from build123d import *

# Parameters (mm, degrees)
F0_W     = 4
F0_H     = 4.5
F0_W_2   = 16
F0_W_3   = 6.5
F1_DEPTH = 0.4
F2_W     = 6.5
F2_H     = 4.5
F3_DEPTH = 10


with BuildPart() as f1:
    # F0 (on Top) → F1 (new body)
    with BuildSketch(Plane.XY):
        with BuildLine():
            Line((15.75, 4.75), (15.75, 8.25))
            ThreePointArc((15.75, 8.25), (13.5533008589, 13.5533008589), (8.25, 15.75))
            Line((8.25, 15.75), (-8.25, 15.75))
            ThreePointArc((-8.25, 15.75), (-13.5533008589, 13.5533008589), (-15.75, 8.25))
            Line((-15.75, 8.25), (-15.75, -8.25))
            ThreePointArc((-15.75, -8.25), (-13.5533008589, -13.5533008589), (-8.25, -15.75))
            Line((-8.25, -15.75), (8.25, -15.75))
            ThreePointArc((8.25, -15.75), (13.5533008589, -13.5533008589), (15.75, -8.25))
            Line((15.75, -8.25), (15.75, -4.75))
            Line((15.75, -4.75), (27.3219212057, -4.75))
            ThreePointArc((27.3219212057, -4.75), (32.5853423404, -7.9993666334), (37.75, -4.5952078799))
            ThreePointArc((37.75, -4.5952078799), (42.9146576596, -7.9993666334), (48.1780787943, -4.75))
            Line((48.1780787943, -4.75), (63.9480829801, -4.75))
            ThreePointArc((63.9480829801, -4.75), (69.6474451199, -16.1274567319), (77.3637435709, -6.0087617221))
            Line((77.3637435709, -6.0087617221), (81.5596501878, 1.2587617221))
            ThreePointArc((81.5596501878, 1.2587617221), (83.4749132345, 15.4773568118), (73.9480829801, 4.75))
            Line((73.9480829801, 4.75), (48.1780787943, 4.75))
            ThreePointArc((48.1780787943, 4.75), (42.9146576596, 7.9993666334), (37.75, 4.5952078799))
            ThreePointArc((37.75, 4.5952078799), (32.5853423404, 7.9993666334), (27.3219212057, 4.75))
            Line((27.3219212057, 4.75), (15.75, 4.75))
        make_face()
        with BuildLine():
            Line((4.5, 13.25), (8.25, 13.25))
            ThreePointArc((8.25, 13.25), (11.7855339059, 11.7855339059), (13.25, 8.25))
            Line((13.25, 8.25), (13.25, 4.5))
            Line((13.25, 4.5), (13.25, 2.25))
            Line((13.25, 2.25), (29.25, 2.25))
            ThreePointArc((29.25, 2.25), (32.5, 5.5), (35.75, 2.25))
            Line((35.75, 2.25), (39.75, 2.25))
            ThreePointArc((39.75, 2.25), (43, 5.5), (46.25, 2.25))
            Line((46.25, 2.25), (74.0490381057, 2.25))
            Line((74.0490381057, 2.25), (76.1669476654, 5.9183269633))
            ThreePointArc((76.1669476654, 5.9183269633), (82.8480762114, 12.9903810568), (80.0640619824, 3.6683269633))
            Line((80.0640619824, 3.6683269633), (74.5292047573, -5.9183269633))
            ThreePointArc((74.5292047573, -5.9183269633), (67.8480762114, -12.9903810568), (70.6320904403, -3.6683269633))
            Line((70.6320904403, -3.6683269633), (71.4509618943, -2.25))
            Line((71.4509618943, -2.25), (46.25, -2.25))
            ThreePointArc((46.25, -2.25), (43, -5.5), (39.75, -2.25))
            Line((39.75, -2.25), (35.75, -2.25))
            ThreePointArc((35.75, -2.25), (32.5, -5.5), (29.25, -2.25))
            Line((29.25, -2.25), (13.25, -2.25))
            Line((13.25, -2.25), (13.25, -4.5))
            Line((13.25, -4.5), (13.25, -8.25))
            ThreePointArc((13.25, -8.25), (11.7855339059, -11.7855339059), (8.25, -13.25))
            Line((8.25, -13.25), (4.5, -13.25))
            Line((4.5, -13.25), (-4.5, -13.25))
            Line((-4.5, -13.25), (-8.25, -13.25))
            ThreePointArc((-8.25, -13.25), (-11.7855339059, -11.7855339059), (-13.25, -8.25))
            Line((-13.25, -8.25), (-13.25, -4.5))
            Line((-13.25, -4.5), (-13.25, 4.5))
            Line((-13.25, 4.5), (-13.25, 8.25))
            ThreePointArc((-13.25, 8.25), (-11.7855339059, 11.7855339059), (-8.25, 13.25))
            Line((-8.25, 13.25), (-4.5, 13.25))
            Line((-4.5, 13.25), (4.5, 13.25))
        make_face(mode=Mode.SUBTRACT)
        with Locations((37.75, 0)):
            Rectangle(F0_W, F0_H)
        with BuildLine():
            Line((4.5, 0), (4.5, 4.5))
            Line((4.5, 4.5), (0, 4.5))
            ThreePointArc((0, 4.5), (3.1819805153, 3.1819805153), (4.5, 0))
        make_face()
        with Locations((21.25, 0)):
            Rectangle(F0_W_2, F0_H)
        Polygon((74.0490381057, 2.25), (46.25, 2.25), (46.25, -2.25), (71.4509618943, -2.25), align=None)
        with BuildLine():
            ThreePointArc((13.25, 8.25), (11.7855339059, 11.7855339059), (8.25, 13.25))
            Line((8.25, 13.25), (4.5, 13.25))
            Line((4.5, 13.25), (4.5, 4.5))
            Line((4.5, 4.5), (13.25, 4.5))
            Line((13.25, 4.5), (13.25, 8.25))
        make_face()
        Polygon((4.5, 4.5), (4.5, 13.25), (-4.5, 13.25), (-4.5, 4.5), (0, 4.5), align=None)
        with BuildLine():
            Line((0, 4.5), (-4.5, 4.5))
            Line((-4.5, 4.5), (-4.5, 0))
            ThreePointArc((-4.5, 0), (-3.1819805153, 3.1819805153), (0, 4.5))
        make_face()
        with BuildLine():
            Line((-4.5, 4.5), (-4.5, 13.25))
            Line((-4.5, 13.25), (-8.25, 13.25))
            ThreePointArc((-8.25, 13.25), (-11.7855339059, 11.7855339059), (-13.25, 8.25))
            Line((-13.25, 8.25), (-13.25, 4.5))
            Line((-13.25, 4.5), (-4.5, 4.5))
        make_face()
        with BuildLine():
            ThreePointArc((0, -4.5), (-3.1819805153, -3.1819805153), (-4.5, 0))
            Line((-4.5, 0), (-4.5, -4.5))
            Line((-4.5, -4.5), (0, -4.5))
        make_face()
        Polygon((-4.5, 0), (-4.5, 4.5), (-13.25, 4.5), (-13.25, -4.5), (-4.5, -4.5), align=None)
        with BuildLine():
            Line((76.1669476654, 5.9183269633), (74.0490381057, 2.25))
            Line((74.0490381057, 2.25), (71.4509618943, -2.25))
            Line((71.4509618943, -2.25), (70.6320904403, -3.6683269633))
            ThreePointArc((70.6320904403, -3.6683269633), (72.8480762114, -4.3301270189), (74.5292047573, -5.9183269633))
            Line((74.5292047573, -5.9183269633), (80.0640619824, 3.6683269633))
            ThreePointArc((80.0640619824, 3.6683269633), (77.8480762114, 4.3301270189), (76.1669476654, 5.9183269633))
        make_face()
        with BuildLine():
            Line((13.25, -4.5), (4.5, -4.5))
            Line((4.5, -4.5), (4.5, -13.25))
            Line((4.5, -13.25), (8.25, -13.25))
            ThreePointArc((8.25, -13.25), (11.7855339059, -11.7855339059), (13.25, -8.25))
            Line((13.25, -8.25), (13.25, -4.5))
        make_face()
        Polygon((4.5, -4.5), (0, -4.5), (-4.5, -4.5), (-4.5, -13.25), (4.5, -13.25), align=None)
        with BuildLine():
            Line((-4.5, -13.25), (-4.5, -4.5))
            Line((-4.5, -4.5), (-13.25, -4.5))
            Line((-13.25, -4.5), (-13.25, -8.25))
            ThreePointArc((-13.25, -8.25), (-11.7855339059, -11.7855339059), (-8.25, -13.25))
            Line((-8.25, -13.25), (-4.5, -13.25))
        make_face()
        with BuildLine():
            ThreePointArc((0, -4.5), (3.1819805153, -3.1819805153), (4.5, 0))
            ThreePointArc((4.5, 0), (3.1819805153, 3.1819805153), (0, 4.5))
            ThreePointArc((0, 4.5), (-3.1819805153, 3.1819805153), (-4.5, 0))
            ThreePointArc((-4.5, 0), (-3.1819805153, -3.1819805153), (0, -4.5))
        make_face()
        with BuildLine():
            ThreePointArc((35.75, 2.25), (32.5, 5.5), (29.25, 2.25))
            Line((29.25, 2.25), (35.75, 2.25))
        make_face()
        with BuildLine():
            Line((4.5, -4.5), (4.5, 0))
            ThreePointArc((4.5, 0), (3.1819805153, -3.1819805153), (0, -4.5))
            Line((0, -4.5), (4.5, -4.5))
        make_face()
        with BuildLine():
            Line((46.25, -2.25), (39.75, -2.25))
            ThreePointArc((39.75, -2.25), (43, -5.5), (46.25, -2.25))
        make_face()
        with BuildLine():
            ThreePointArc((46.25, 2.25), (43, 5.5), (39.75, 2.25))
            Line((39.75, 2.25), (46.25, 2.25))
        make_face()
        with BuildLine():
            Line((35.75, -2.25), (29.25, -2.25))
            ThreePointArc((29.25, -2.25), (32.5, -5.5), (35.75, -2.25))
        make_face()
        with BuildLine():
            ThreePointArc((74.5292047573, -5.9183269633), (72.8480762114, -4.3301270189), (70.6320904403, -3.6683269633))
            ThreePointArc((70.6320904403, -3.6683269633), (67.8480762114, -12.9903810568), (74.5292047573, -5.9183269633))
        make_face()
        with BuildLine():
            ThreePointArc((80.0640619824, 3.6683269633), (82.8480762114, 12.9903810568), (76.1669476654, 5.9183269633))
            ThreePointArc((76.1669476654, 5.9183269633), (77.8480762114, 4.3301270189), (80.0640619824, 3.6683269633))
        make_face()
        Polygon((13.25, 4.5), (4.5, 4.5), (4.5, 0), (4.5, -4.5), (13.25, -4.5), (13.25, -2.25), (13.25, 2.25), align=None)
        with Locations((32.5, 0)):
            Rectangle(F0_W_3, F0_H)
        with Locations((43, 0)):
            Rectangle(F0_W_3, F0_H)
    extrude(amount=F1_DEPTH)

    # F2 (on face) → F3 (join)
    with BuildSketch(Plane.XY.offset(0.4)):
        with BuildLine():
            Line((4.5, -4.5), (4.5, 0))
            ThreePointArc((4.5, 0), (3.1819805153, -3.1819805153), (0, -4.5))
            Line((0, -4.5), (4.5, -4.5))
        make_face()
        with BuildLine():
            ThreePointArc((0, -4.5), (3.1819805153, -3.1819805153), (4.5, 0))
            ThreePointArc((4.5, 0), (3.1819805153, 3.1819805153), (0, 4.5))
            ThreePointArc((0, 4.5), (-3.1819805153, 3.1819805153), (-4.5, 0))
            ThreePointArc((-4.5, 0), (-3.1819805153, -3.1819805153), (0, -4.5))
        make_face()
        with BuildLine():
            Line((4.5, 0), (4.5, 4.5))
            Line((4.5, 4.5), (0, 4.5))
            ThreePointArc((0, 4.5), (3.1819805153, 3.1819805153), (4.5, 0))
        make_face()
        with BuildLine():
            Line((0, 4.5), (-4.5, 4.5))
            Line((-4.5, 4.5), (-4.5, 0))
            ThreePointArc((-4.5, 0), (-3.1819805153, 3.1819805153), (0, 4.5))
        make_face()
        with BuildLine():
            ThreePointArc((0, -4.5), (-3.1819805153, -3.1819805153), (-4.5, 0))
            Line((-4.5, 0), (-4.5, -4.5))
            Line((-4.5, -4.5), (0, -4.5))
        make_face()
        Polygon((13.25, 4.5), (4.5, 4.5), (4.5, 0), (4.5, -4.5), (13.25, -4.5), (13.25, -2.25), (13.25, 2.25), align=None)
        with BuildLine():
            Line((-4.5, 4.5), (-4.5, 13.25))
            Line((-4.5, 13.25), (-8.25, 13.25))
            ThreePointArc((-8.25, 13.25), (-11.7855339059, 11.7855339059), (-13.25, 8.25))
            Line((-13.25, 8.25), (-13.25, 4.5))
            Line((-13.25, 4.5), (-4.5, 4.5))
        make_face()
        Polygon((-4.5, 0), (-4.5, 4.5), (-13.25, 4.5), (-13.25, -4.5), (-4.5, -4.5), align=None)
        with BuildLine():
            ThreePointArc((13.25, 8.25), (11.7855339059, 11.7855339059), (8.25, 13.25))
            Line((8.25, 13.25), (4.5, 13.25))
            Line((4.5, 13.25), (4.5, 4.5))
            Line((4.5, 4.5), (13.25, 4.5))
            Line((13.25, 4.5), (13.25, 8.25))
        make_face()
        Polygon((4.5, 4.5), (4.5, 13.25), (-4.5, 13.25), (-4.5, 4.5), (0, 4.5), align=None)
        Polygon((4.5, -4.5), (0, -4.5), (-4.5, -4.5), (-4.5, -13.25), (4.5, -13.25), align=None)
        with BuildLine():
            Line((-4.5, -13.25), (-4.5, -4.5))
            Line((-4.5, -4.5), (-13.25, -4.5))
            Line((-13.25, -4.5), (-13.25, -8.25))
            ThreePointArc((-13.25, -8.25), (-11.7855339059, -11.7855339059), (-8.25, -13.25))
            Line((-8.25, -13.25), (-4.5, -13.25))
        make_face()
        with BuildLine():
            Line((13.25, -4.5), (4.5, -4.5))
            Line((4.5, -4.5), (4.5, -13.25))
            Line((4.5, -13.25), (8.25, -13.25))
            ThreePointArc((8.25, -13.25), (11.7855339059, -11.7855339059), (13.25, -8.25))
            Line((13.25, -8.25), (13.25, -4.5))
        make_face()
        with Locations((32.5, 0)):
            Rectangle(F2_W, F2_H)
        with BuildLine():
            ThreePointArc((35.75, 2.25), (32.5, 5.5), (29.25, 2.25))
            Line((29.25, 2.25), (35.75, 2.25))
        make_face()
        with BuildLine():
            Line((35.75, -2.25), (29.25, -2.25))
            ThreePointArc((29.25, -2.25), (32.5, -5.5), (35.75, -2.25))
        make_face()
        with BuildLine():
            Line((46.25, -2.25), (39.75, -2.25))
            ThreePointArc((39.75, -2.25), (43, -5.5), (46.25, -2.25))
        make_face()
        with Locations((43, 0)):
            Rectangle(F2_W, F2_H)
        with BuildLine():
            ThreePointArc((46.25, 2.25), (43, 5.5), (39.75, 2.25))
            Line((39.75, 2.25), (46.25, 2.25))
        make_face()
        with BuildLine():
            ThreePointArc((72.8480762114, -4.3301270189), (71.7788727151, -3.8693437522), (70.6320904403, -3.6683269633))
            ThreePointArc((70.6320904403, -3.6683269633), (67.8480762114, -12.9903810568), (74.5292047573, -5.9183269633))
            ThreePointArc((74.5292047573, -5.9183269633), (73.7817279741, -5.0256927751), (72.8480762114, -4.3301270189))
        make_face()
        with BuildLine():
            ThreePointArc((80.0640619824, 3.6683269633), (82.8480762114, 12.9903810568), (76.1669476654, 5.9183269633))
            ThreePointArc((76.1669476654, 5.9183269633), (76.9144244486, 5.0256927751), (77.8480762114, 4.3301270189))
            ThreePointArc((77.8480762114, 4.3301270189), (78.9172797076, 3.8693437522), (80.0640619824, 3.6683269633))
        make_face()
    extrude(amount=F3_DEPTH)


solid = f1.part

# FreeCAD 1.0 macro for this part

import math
import FreeCAD as App
import Part
import Sketcher

V = App.Vector
Q = App.Units.Quantity

doc = App.newDocument("Part")
body = doc.addObject("PartDesign::Body", "Body")

sketch1 = doc.addObject("Sketcher::SketchObject", "Sketch")
body.addObject(sketch1)
sketch1.AttachmentSupport = (doc.XY_Plane, [""])
sketch1.MapMode = "FlatFace"
sketch1.addGeometry([
    Part.LineSegment(V(15.75, 4.75, 0), V(15.75, 8.25, 0)),
    Part.ArcOfCircle(Part.Circle(V(8.25, 8.25, 0), V(0, 0, 1), 7.5), math.radians(0), math.radians(90)),
    Part.LineSegment(V(8.25, 15.75, 0), V(-8.25, 15.75, 0)),
    Part.ArcOfCircle(Part.Circle(V(-8.25, 8.25, 0), V(0, 0, 1), 7.5), math.radians(90), math.radians(180)),
    Part.LineSegment(V(-15.75, 8.25, 0), V(-15.75, -8.25, 0)),
    Part.ArcOfCircle(Part.Circle(V(-8.25, -8.25, 0), V(0, 0, 1), 7.5), math.radians(180), math.radians(270)),
    Part.LineSegment(V(-8.25, -15.75, 0), V(8.25, -15.75, 0)),
    Part.ArcOfCircle(Part.Circle(V(8.25, -8.25, 0), V(0, 0, 1), 7.5), math.radians(-90), math.radians(0)),
    Part.LineSegment(V(15.75, -8.25, 0), V(15.75, -4.75, 0)),
    Part.LineSegment(V(15.75, -4.75, 0), V(27.321921, -4.75, 0)),
    Part.ArcOfCircle(Part.Circle(V(32.5, -2.25, 0), V(0, 0, 1), 5.75), math.radians(-154.228538), math.radians(-24.070615)),
    Part.ArcOfCircle(Part.Circle(V(43, -2.25, 0), V(0, 0, 1), 5.75), math.radians(-155.929385), math.radians(-25.771462)),
    Part.LineSegment(V(48.178079, -4.75, 0), V(63.948083, -4.75, 0)),
    Part.ArcOfCircle(Part.Circle(V(70.348076, -8.660254, 0), V(0, 0, 1), 7.5), math.radians(148.575994), math.radians(380.70352)),
    Part.LineSegment(V(77.363744, -6.008762, 0), V(81.55965, 1.258762, 0)),
    Part.ArcOfCircle(Part.Circle(V(80.348076, 8.660254, 0), V(0, 0, 1), 7.5), math.radians(-80.70352), math.radians(211.424006)),
    Part.LineSegment(V(73.948083, 4.75, 0), V(48.178079, 4.75, 0)),
    Part.ArcOfCircle(Part.Circle(V(43, 2.25, 0), V(0, 0, 1), 5.75), math.radians(25.771462), math.radians(155.929385)),
    Part.ArcOfCircle(Part.Circle(V(32.5, 2.25, 0), V(0, 0, 1), 5.75), math.radians(24.070615), math.radians(154.228538)),
    Part.LineSegment(V(27.321921, 4.75, 0), V(15.75, 4.75, 0)),
], False)
sketch1.addConstraint([
    Sketcher.Constraint("Tangent", 0, 2, 1, 1),
    Sketcher.Constraint("Tangent", 1, 2, 2, 1),
    Sketcher.Constraint("Tangent", 2, 2, 3, 1),
    Sketcher.Constraint("Tangent", 3, 2, 4, 1),
    Sketcher.Constraint("Tangent", 4, 2, 5, 1),
    Sketcher.Constraint("Tangent", 5, 2, 6, 1),
    Sketcher.Constraint("Tangent", 6, 2, 7, 1),
    Sketcher.Constraint("Tangent", 7, 2, 8, 1),
    Sketcher.Constraint("Coincident", 8, 2, 9, 1),
    Sketcher.Constraint("Coincident", 9, 2, 10, 1),
    Sketcher.Constraint("Coincident", 10, 2, 11, 1),
    Sketcher.Constraint("Coincident", 11, 2, 12, 1),
    Sketcher.Constraint("Coincident", 12, 2, 13, 1),
    Sketcher.Constraint("Coincident", 13, 2, 14, 1),
    Sketcher.Constraint("Coincident", 14, 2, 15, 1),
    Sketcher.Constraint("Coincident", 15, 2, 16, 1),
    Sketcher.Constraint("Coincident", 16, 2, 17, 1),
    Sketcher.Constraint("Coincident", 17, 2, 18, 1),
    Sketcher.Constraint("Coincident", 18, 2, 19, 1),
    Sketcher.Constraint("Coincident", 19, 2, 0, 1),
    Sketcher.Constraint("Vertical", 0),
    Sketcher.Constraint("Horizontal", 2),
    Sketcher.Constraint("Vertical", 4),
    Sketcher.Constraint("Horizontal", 6),
    Sketcher.Constraint("Vertical", 8),
    Sketcher.Constraint("Horizontal", 9),
    Sketcher.Constraint("Horizontal", 12),
    Sketcher.Constraint("Horizontal", 16),
    Sketcher.Constraint("Horizontal", 19),
    Sketcher.Constraint("Equal", 1, 3),
    Sketcher.Constraint("Equal", 3, 5),
    Sketcher.Constraint("Equal", 5, 7),
    Sketcher.Constraint("Equal", 10, 11),
    Sketcher.Constraint("Equal", 7, 13),
    Sketcher.Constraint("Equal", 13, 15),
    Sketcher.Constraint("Equal", 11, 17),
    Sketcher.Constraint("Equal", 17, 18),
    Sketcher.Constraint("Symmetric", 1, 3, 5, 3, -1, 1),
    Sketcher.Constraint("Symmetric", 11, 3, 17, 3, -1),
    Sketcher.Constraint("Symmetric", 10, 3, 18, 3, -1),
    Sketcher.Constraint("Symmetric", 8, 2, 19, 2, -1),
    Sketcher.Constraint("Horizontal", 10, 3, 11, 3),
    Sketcher.Constraint("Horizontal", 9, 2, 11, 2),
    Sketcher.Constraint("Horizontal", 16, 2, 18, 2),
    Sketcher.Constraint("Equal", 6, 4),
    Sketcher.Constraint("Radius", 1, 7.5),
    Sketcher.Constraint("Angle", 14, Q("60 deg")),
    Sketcher.Constraint("Radius", 10, 5.75),
    Sketcher.Constraint("DistanceX", 2, 2, 2, 1, 16.5),
    Sketcher.Constraint("DistanceY", 0, 1, 0, 2, 3.5),
    Sketcher.Constraint("DistanceX", -1, 1, 11, 3, 43.0),
    Sketcher.Constraint("DistanceY", 7, 3, 10, 3, 6.0),
    Sketcher.Constraint("DistanceX", 13, 3, 15, 3, 10.0),
    Sketcher.Constraint("DistanceX", 12, 2, 15, 2, 10.0),
    Sketcher.Constraint("DistanceX", -1, 1, 10, 3, 32.5),
    Sketcher.Constraint("DistanceX", 12, 1, 12, 2, 15.770004),
    Sketcher.Constraint("DistanceY", 13, 2, -1, 1, 6.008762),
    Sketcher.Constraint("DistanceX", -1, 1, 14, 2, 81.55965),
])
pad1 = doc.addObject("PartDesign::Pad", "Pad")
body.addObject(pad1)
pad1.Profile = sketch1
pad1.Length = 0.4

sketch2 = doc.addObject("Sketcher::SketchObject", "Sketch001")
body.addObject(sketch2)
sketch2.AttachmentSupport = (doc.XY_Plane, [""])
sketch2.MapMode = "FlatFace"
sketch2.AttachmentOffset = App.Placement(V(0, 0, 0.4), App.Rotation())
sketch2.addGeometry([
    Part.ArcOfCircle(Part.Circle(V(8.25, 8.25, 0), V(0, 0, 1), 5), math.radians(0), math.radians(90)),
    Part.LineSegment(V(8.25, 13.25, 0), V(-8.25, 13.25, 0)),
    Part.ArcOfCircle(Part.Circle(V(-8.25, 8.25, 0), V(0, 0, 1), 5), math.radians(90), math.radians(180)),
    Part.LineSegment(V(-13.25, 8.25, 0), V(-13.25, -8.25, 0)),
    Part.ArcOfCircle(Part.Circle(V(-8.25, -8.25, 0), V(0, 0, 1), 5), math.radians(180), math.radians(270)),
    Part.LineSegment(V(-8.25, -13.25, 0), V(8.25, -13.25, 0)),
    Part.ArcOfCircle(Part.Circle(V(8.25, -8.25, 0), V(0, 0, 1), 5), math.radians(-90), math.radians(0)),
    Part.LineSegment(V(13.25, -8.25, 0), V(13.25, 8.25, 0)),
    Part.LineSegment(V(29.25, 2.25, 0), V(29.25, -2.25, 0)),
    Part.ArcOfCircle(Part.Circle(V(32.5, -2.25, 0), V(0, 0, 1), 3.25), math.radians(180), math.radians(360)),
    Part.LineSegment(V(35.75, -2.25, 0), V(35.75, 2.25, 0)),
    Part.ArcOfCircle(Part.Circle(V(32.5, 2.25, 0), V(0, 0, 1), 3.25), math.radians(0), math.radians(180)),
    Part.ArcOfCircle(Part.Circle(V(43, -2.25, 0), V(0, 0, 1), 3.25), math.radians(180), math.radians(360)),
    Part.LineSegment(V(46.25, -2.25, 0), V(46.25, 2.25, 0)),
    Part.ArcOfCircle(Part.Circle(V(43, 2.25, 0), V(0, 0, 1), 3.25), math.radians(0), math.radians(180)),
    Part.LineSegment(V(39.75, 2.25, 0), V(39.75, -2.25, 0)),
    Part.ArcOfCircle(Part.Circle(V(70.348076, -8.660254, 0), V(0, 0, 1), 5), math.radians(60), math.radians(86.743684)),
    Part.ArcOfCircle(Part.Circle(V(70.348076, -8.660254, 0), V(0, 0, 1), 5), math.radians(86.743684), math.radians(393.256316)),
    Part.ArcOfCircle(Part.Circle(V(70.348076, -8.660254, 0), V(0, 0, 1), 5), math.radians(33.256316), math.radians(60)),
    Part.ArcOfCircle(Part.Circle(V(80.348076, 8.660254, 0), V(0, 0, 1), 5), math.radians(-93.256316), math.radians(213.256316)),
    Part.ArcOfCircle(Part.Circle(V(80.348076, 8.660254, 0), V(0, 0, 1), 5), math.radians(-146.743684), math.radians(-120)),
    Part.ArcOfCircle(Part.Circle(V(80.348076, 8.660254, 0), V(0, 0, 1), 5), math.radians(-120), math.radians(-93.256316)),
], False)
sketch2.addConstraint([
    Sketcher.Constraint("Tangent", 0, 2, 1, 1),
    Sketcher.Constraint("Tangent", 1, 2, 2, 1),
    Sketcher.Constraint("Tangent", 2, 2, 3, 1),
    Sketcher.Constraint("Tangent", 3, 2, 4, 1),
    Sketcher.Constraint("Tangent", 4, 2, 5, 1),
    Sketcher.Constraint("Tangent", 5, 2, 6, 1),
    Sketcher.Constraint("Tangent", 6, 2, 7, 1),
    Sketcher.Constraint("Tangent", 7, 2, 0, 1),
    Sketcher.Constraint("Tangent", 8, 2, 9, 1),
    Sketcher.Constraint("Tangent", 9, 2, 10, 1),
    Sketcher.Constraint("Tangent", 10, 2, 11, 1),
    Sketcher.Constraint("Tangent", 11, 2, 8, 1),
    Sketcher.Constraint("Tangent", 12, 2, 13, 1),
    Sketcher.Constraint("Tangent", 13, 2, 14, 1),
    Sketcher.Constraint("Tangent", 14, 2, 15, 1),
    Sketcher.Constraint("Tangent", 15, 2, 12, 1),
    Sketcher.Constraint("Tangent", 16, 2, 17, 1),
    Sketcher.Constraint("Tangent", 17, 2, 18, 1),
    Sketcher.Constraint("Tangent", 18, 2, 16, 1),
    Sketcher.Constraint("Tangent", 19, 2, 20, 1),
    Sketcher.Constraint("Tangent", 20, 2, 21, 1),
    Sketcher.Constraint("Tangent", 21, 2, 19, 1),
    Sketcher.Constraint("Horizontal", 1),
    Sketcher.Constraint("Vertical", 3),
    Sketcher.Constraint("Horizontal", 5),
    Sketcher.Constraint("Vertical", 7),
    Sketcher.Constraint("Vertical", 8),
    Sketcher.Constraint("Vertical", 10),
    Sketcher.Constraint("Vertical", 13),
    Sketcher.Constraint("Vertical", 15),
    Sketcher.Constraint("Equal", 0, 2),
    Sketcher.Constraint("Equal", 2, 4),
    Sketcher.Constraint("Equal", 4, 6),
    Sketcher.Constraint("Equal", 11, 12),
    Sketcher.Constraint("Equal", 6, 16),
    Sketcher.Constraint("Equal", 18, 19),
    Sketcher.Constraint("Symmetric", 0, 3, 4, 3, -1, 1),
    Sketcher.Constraint("Horizontal", 9, 3, 12, 3),
    Sketcher.Constraint("Horizontal", 11, 3, 14, 3),
    Sketcher.Constraint("Equal", 5, 3),
    Sketcher.Constraint("Radius", 0, 5.0),
    Sketcher.Constraint("Radius", 9, 3.25),
    Sketcher.Constraint("DistanceX", 1, 2, 1, 1, 16.5),
    Sketcher.Constraint("DistanceY", 8, 2, 8, 1, 4.5),
    Sketcher.Constraint("DistanceX", -1, 1, 12, 3, 43.0),
    Sketcher.Constraint("DistanceY", 6, 3, 9, 3, 6.0),
    Sketcher.Constraint("DistanceX", 18, 3, 19, 3, 10.0),
    Sketcher.Constraint("DistanceX", 6, 2, 8, 2, 16.0),
    Sketcher.Constraint("DistanceX", 18, 2, 20, 2, 5.0),
    Sketcher.Constraint("DistanceX", 18, 3, 18, 2, 2.5),
    Sketcher.Constraint("DistanceY", 17, 2, 16, 2, 2.25),
    Sketcher.Constraint("DistanceY", 21, 2, 19, 2, 2.25),
    Sketcher.Constraint("DistanceY", 17, 2, 18, 2, 1.5882),
    Sketcher.Constraint("DistanceY", 20, 2, 19, 2, 1.5882),
    Sketcher.Constraint("DistanceX", -1, 1, 16, 2, 70.63209),
    Sketcher.Constraint("DistanceY", 18, 3, 19, 3, 17.320508),
    Sketcher.Constraint("DistanceY", 16, 3, -1, 1, 8.660254),
])
pad2 = doc.addObject("PartDesign::Pad", "Pad001")
body.addObject(pad2)
pad2.Profile = sketch2
pad2.Length = 10

doc.recompute()
